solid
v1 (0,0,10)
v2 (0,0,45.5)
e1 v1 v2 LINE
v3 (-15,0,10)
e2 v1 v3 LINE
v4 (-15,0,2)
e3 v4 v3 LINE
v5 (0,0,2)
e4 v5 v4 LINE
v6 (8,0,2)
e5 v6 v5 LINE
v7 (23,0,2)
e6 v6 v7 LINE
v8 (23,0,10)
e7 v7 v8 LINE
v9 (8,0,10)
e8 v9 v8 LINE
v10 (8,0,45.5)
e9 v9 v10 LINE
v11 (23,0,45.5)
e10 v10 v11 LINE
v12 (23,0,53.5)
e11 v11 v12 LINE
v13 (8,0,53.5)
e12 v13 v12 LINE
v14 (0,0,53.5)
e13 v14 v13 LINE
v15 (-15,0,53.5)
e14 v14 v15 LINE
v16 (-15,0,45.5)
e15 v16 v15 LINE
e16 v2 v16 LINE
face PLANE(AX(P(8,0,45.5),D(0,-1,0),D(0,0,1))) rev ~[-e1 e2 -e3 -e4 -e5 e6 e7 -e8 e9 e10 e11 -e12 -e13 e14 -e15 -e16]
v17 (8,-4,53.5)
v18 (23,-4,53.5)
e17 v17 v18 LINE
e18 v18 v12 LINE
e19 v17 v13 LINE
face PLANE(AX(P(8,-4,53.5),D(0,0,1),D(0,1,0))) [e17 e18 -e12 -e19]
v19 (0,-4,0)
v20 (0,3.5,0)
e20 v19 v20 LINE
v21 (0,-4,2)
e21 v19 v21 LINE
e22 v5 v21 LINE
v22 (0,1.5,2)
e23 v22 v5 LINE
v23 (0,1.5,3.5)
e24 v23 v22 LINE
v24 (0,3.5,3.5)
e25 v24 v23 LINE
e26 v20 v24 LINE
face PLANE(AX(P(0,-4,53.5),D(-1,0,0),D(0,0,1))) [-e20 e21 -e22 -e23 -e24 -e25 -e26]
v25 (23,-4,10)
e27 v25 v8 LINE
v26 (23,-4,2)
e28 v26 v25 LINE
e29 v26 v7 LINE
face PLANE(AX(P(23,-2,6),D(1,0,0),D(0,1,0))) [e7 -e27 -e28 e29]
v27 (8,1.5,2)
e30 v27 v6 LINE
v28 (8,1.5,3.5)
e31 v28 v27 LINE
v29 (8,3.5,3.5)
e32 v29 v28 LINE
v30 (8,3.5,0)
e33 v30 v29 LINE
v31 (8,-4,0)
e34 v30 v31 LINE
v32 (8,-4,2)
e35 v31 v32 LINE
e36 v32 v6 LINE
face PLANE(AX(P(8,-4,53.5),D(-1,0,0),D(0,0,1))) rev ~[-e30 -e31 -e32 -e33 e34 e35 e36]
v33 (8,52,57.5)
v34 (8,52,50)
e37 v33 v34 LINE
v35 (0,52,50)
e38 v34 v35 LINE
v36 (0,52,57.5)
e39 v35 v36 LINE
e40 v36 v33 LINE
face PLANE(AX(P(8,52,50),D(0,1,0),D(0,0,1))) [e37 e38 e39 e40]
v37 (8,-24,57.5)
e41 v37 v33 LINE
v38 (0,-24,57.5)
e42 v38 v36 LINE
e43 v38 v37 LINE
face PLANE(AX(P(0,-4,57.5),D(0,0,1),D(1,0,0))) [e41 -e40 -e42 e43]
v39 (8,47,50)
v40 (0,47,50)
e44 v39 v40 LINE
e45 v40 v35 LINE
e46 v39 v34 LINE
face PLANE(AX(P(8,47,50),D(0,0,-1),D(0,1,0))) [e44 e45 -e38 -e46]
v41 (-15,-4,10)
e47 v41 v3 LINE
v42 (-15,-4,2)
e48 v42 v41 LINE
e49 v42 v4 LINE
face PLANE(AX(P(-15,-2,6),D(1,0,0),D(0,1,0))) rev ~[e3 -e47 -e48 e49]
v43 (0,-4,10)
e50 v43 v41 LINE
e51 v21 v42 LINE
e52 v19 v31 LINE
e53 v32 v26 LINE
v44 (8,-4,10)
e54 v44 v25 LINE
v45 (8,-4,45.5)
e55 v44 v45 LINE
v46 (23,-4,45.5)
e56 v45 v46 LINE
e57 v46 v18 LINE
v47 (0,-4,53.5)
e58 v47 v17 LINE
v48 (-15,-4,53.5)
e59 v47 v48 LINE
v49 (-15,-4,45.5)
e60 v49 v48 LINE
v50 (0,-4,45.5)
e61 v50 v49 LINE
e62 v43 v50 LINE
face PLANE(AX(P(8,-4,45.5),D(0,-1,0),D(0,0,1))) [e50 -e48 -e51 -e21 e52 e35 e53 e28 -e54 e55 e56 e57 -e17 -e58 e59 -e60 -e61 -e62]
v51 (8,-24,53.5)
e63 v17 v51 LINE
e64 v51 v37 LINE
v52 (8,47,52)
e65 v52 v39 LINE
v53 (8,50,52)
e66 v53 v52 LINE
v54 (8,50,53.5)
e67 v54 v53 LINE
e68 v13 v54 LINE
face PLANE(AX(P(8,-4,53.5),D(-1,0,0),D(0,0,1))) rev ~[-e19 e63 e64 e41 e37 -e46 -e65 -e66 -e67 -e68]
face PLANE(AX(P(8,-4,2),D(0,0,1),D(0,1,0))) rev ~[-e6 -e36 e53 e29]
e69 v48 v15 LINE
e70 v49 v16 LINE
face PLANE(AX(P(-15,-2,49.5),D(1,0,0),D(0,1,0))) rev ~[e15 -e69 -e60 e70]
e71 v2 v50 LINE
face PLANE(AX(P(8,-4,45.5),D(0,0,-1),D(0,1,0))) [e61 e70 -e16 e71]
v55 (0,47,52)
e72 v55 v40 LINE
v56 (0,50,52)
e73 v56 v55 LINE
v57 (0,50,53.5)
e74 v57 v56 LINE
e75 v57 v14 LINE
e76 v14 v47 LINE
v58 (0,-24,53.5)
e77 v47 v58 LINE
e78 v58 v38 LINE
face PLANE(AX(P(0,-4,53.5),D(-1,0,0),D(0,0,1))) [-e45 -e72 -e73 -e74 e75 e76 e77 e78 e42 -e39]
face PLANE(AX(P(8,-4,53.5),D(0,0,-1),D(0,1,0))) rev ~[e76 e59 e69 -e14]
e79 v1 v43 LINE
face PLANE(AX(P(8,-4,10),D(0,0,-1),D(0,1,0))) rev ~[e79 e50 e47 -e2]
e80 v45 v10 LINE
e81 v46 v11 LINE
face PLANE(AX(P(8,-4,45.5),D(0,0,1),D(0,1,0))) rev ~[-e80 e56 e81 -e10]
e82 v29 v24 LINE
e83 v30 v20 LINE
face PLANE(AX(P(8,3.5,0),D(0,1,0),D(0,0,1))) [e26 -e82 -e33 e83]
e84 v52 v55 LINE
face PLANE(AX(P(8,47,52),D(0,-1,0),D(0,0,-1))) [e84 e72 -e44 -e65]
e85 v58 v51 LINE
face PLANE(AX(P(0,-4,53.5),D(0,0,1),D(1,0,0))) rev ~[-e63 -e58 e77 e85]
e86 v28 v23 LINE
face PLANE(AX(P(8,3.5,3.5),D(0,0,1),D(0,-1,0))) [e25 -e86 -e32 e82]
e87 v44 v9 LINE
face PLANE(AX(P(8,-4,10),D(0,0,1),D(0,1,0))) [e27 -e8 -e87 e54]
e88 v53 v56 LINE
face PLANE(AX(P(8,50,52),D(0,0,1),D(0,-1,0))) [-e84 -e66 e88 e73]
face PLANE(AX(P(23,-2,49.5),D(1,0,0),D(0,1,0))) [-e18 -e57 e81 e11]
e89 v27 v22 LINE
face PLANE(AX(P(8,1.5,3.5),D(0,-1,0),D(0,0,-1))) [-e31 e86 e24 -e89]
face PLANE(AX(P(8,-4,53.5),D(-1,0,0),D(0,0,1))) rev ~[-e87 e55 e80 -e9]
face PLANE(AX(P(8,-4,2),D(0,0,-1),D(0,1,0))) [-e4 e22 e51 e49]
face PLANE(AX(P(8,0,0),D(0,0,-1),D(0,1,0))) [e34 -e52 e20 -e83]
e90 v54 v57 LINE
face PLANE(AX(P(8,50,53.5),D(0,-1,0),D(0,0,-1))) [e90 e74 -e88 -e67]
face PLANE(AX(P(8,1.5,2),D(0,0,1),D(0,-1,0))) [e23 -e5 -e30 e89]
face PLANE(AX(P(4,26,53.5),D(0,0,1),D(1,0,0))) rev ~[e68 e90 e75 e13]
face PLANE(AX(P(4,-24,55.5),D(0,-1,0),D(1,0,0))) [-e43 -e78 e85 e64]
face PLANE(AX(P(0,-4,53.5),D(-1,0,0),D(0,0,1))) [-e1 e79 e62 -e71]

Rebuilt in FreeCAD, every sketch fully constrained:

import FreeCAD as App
import Part
import Sketcher
Q = App.Units.Quantity


def add_polygon(sketch, points):
    """Adds a closed chain of lines whose ends are joined by coincident constraints."""
    first, n = sketch.GeometryCount, len(points)
    for a, b in zip(points, points[1:] + points[:1]):
        sketch.addGeometry(Part.LineSegment(App.Vector(*a, 0), App.Vector(*b, 0)), False)
    for i in range(n):
        sketch.addConstraint(Sketcher.Constraint("Coincident", first + i, 2, first + (i + 1) % n, 1))

doc = App.newDocument("Part")
params = doc.addObject("Spreadsheet::Sheet", "Params")
for row, (alias, value) in enumerate([
    ("sketch1_width", "8 mm"),
    ("sketch1_height", "53.5 mm"),
    ("pad1_length", "4 mm"),
    ("sketch2_width", "8 mm"),
    ("sketch2_height", "56 mm"),
    ("pad2_length", "4 mm"),
    ("sketch3_width", "2 mm"),
    ("sketch3_width2", "3 mm"),
    ("sketch3_height", "3.5 mm"),
    ("pad3_length", "8 mm"),
    ("sketch4_width", "2 mm"),
    ("sketch4_width2", "3.5 mm"),
    ("pad4_length", "8 mm"),
    ("sketch5_width", "8 mm"),
    ("sketch5_height", "4 mm"),
    ("pad5_length", "20 mm"),
    ("sketch6_width", "4 mm"),
    ("sketch6_height", "8 mm"),
    ("pad6_length", "15 mm"),
    ("pad6_length2", "23 mm"),
], start=1):
    params.set(f"A{row}", alias)
    params.set(f"B{row}", "=" + value)
    params.setAlias(f"B{row}", alias)

body = doc.addObject("PartDesign::Body", "Body")

# Sketch on XZ plane
sketch1 = body.newObject("Sketcher::SketchObject", "Sketch")
sketch1.AttachmentSupport = (doc.getObject("XZ_Plane"), [""])
sketch1.MapMode = "FlatFace"
add_polygon(sketch1, [(0, 54), (0, 0), (8, 0), (8, 54)])  # lines 0-3
sketch1.addConstraint([
    Sketcher.Constraint("Vertical", 0),
    Sketcher.Constraint("Horizontal", 1),
    Sketcher.Constraint("Vertical", 2),
    Sketcher.Constraint("Horizontal", 3),
    Sketcher.Constraint("Coincident", 0, 2, -1, 1),
    Sketcher.Constraint("DistanceX", 1, 1, 1, 2, Q("8 mm")),
    Sketcher.Constraint("DistanceY", 0, 2, 0, 1, Q("53.5 mm")),
])
sketch1.setExpression("Constraints[9]", "Params.sketch1_width")
sketch1.setExpression("Constraints[10]", "Params.sketch1_height")
pad1 = body.newObject("PartDesign::Pad", "Pad")
pad1.Profile = sketch1
pad1.setExpression("Length", "Params.pad1_length")

# Sketch on XY plane
sketch2 = body.newObject("Sketcher::SketchObject", "Sketch001")
sketch2.AttachmentSupport = (doc.getObject("XY_Plane"), [""])
sketch2.MapMode = "FlatFace"
sketch2.AttachmentOffset = App.Placement(App.Vector(0, 0, 53.5), App.Rotation())
add_polygon(sketch2, [(0, 52), (0, -4), (8, -4), (8, 52)])  # lines 0-3
sketch2.addConstraint([
    Sketcher.Constraint("Vertical", 0),
    Sketcher.Constraint("Horizontal", 1),
    Sketcher.Constraint("Vertical", 2),
    Sketcher.Constraint("Horizontal", 3),
    Sketcher.Constraint("PointOnObject", 0, 2, -2),
    Sketcher.Constraint("DistanceX", 1, 1, 1, 2, Q("8 mm")),
    Sketcher.Constraint("DistanceY", 0, 2, 0, 1, Q("56 mm")),
    Sketcher.Constraint("DistanceY", 0, 2, -1, 1, Q("4 mm")),
])
sketch2.setExpression("Constraints[9]", "Params.sketch2_width")
sketch2.setExpression("Constraints[10]", "Params.sketch2_height")
pad2 = body.newObject("PartDesign::Pad", "Pad001")
pad2.Profile = sketch2
pad2.setExpression("Length", "Params.pad2_length")

# Sketch on YZ plane
sketch3 = body.newObject("Sketcher::SketchObject", "Sketch002")
sketch3.AttachmentSupport = (doc.getObject("YZ_Plane"), [""])
sketch3.MapMode = "FlatFace"
sketch3.AttachmentOffset = App.Placement(App.Vector(0, 0, 8), App.Rotation())
add_polygon(sketch3, [(52, 50), (52, 53.5), (50, 53.5), (50, 52), (47, 52), (47, 50)])  # lines 0-5
sketch3.addConstraint([
    Sketcher.Constraint("Vertical", 0),
    Sketcher.Constraint("Horizontal", 1),
    Sketcher.Constraint("Vertical", 2),
    Sketcher.Constraint("Horizontal", 3),
    Sketcher.Constraint("Vertical", 4),
    Sketcher.Constraint("Horizontal", 5),
    Sketcher.Constraint("Equal", 1, 4),
    Sketcher.Constraint("DistanceX", 1, 2, 1, 1, Q("2 mm")),
    Sketcher.Constraint("DistanceX", 3, 2, 3, 1, Q("3 mm")),
    Sketcher.Constraint("DistanceY", 0, 1, 0, 2, Q("3.5 mm")),
    Sketcher.Constraint("DistanceX", -1, 1, 0, 2, Q("52 mm")),
    Sketcher.Constraint("DistanceY", -1, 1, 2, 2, Q("52 mm")),
])
sketch3.setExpression("Constraints[13]", "Params.sketch3_width")
sketch3.setExpression("Constraints[14]", "Params.sketch3_width2")
sketch3.setExpression("Constraints[15]", "Params.sketch3_height")
pad3 = body.newObject("PartDesign::Pad", "Pad002")
pad3.Profile = sketch3
pad3.setExpression("Length", "Params.pad3_length")
pad3.Reversed = True
body2 = doc.addObject("PartDesign::Body", "Body001")

# Sketch on YZ plane
sketch4 = body2.newObject("Sketcher::SketchObject", "Sketch003")
sketch4.AttachmentSupport = (doc.getObject("YZ_Plane001"), [""])
sketch4.MapMode = "FlatFace"
sketch4.AttachmentOffset = App.Placement(App.Vector(0, 0, 8), App.Rotation())
add_polygon(sketch4, [(0, 2), (0, 0), (3.5, 0), (3.5, 3.5), (1.5, 3.5), (1.5, 2)])  # lines 0-5
sketch4.addConstraint([
    Sketcher.Constraint("Vertical", 0),
    Sketcher.Constraint("Horizontal", 1),
    Sketcher.Constraint("Vertical", 2),
    Sketcher.Constraint("Horizontal", 3),
    Sketcher.Constraint("Vertical", 4),
    Sketcher.Constraint("Horizontal", 5),
    Sketcher.Constraint("Coincident", 0, 2, -1, 1),
    Sketcher.Constraint("Equal", 3, 0),
    Sketcher.Constraint("Equal", 1, 2),
    Sketcher.Constraint("DistanceX", 3, 2, 3, 1, Q("2 mm")),
    Sketcher.Constraint("DistanceX", 1, 1, 1, 2, Q("3.5 mm")),
])
sketch4.setExpression("Constraints[15]", "Params.sketch4_width")
sketch4.setExpression("Constraints[16]", "Params.sketch4_width2")
pad4 = body2.newObject("PartDesign::Pad", "Pad003")
pad4.Profile = sketch4
pad4.setExpression("Length", "Params.pad4_length")
pad4.Reversed = True
doc.recompute()

boolean = body.newObject("PartDesign::Boolean", "Boolean")
boolean.Type = "Fuse"
boolean.addObjects([body2])

# Sketch on XZ plane
sketch5 = body.newObject("Sketcher::SketchObject", "Sketch004")
sketch5.AttachmentSupport = (doc.getObject("XZ_Plane"), [""])
sketch5.MapMode = "FlatFace"
sketch5.AttachmentOffset = App.Placement(App.Vector(0, 0, 4), App.Rotation())
add_polygon(sketch5, [(0, 57.5), (0, 53.5), (8, 53.5), (8, 57.5)])  # lines 0-3
sketch5.addConstraint([
    Sketcher.Constraint("Vertical", 0),
    Sketcher.Constraint("Horizontal", 1),
    Sketcher.Constraint("Vertical", 2),
    Sketcher.Constraint("Horizontal", 3),
    Sketcher.Constraint("PointOnObject", 0, 2, -2),
    Sketcher.Constraint("DistanceX", 1, 1, 1, 2, Q("8 mm")),
    Sketcher.Constraint("DistanceY", 0, 2, 0, 1, Q("4 mm")),
    Sketcher.Constraint("DistanceY", -1, 1, 0, 2, Q("53.5 mm")),
])
sketch5.setExpression("Constraints[9]", "Params.sketch5_width")
sketch5.setExpression("Constraints[10]", "Params.sketch5_height")
pad5 = body.newObject("PartDesign::Pad", "Pad004")
pad5.Profile = sketch5
pad5.setExpression("Length", "Params.pad5_length")

# Sketch on YZ plane
sketch6 = body.newObject("Sketcher::SketchObject", "Sketch005")
sketch6.AttachmentSupport = (doc.getObject("YZ_Plane"), [""])
sketch6.MapMode = "FlatFace"
sketch6.AttachmentOffset = App.Placement(App.Vector(0, 0, 8), App.Rotation())
add_polygon(sketch6, [(-4, 53.5), (-4, 45.5), (0, 45.5), (0, 53.5)])  # lines 0-3
add_polygon(sketch6, [(-4, 10), (-4, 2), (0, 2), (0, 10)])  # lines 4-7
sketch6.addConstraint([
    Sketcher.Constraint("Vertical", 0),
    Sketcher.Constraint("Horizontal", 1),
    Sketcher.Constraint("Vertical", 2),
    Sketcher.Constraint("Horizontal", 3),
    Sketcher.Constraint("Vertical", 4),
    Sketcher.Constraint("Horizontal", 5),
    Sketcher.Constraint("Vertical", 6),
    Sketcher.Constraint("Horizontal", 7),
    Sketcher.Constraint("PointOnObject", 1, 2, -2),
    Sketcher.Constraint("PointOnObject", 5, 2, -2),
    Sketcher.Constraint("Vertical", 3, 2, 4, 2),
    Sketcher.Constraint("Equal", 2, 4),
    Sketcher.Constraint("DistanceX", 1, 1, 1, 2, Q("4 mm")),
    Sketcher.Constraint("DistanceY", 0, 2, 0, 1, Q("8 mm")),
    Sketcher.Constraint("DistanceY", -1, 1, 4, 2, Q("2 mm")),
    Sketcher.Constraint("DistanceY", -1, 1, 0, 2, Q("45.5 mm")),
])
sketch6.setExpression("Constraints[20]", "Params.sketch6_width")
sketch6.setExpression("Constraints[21]", "Params.sketch6_height")
pad6 = body.newObject("PartDesign::Pad", "Pad005")
pad6.Profile = sketch6
pad6.Type = "TwoLengths"
pad6.setExpression("Length", "Params.pad6_length")
pad6.setExpression("Length2", "Params.pad6_length2")

doc.recompute()
